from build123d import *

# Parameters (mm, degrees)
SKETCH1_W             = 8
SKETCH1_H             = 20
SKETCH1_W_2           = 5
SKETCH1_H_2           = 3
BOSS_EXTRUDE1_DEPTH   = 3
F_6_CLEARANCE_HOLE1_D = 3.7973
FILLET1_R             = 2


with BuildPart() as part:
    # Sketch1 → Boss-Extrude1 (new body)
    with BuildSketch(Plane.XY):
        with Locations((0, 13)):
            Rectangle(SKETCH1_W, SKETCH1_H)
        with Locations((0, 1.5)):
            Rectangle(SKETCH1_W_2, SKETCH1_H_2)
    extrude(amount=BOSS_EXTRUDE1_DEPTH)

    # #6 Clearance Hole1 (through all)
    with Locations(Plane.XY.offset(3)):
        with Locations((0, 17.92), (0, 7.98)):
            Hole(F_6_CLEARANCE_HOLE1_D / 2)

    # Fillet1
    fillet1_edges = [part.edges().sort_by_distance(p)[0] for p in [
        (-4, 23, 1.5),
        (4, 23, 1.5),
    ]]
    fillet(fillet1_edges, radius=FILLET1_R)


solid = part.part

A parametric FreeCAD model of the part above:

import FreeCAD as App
import Part
import Sketcher
from FreeCAD import Vector
Q = App.Units.Quantity


def edges_at(feature, points):
    """Names of the edges that pass closest to the given points."""
    edges = feature.Shape.Edges
    near = lambda p: min(range(len(edges)), key=lambda i: edges[i].distToShape(Part.Vertex(*p))[0])
    return sorted({f"Edge{near(p) + 1}" for p in points})


def add_polygon(sketch, points):
    """Adds a closed chain of lines whose ends are joined by coincident constraints."""
    first, n = sketch.GeometryCount, len(points)
    for a, b in zip(points, points[1:] + points[:1]):
        sketch.addGeometry(Part.LineSegment(App.Vector(*a, 0), App.Vector(*b, 0)), False)
    for i in range(n):
        sketch.addConstraint(Sketcher.Constraint("Coincident", first + i, 2, first + (i + 1) % n, 1))

doc = App.newDocument("Part")
params = doc.addObject("Spreadsheet::Sheet", "Params")
for row, (alias, value) in enumerate([
    ("sketch1_width", "5 mm"),
    ("sketch1_width2", "8 mm"),
    ("sketch1_height", "20 mm"),
    ("sketch1_height2", "3 mm"),
    ("pad1_length", "3 mm"),
    ("hole_diameter", "3.7973 mm"),
    ("fillet_radius", "2 mm"),
], start=1):
    params.set(f"A{row}", alias)
    params.set(f"B{row}", "=" + value)
    params.setAlias(f"B{row}", alias)

body = doc.addObject("PartDesign::Body", "Body")

# Sketch on XY plane
sketch1 = body.newObject("Sketcher::SketchObject", "Sketch")
sketch1.AttachmentSupport = (doc.getObject("XY_Plane"), [""])
sketch1.MapMode = "FlatFace"
add_polygon(sketch1, [(-4, 23), (-4, 3), (-2.5, 3), (-2.5, 0), (2.5, 0), (2.5, 3), (4, 3), (4, 23)])  # lines 0-7
sketch1.addConstraint(Sketcher.Constraint("Vertical", 0))
sketch1.addConstraint(Sketcher.Constraint("Horizontal", 1))
sketch1.addConstraint(Sketcher.Constraint("Vertical", 2))
sketch1.addConstraint(Sketcher.Constraint("Horizontal", 3))
sketch1.addConstraint(Sketcher.Constraint("Vertical", 4))
sketch1.addConstraint(Sketcher.Constraint("Horizontal", 5))
sketch1.addConstraint(Sketcher.Constraint("Vertical", 6))
sketch1.addConstraint(Sketcher.Constraint("Horizontal", 7))
sketch1.addConstraint(Sketcher.Constraint("Symmetric", 2, 2, 3, 2, -1, 1))
sketch1.addConstraint(Sketcher.Constraint("Symmetric", 0, 2, 5, 2, -2))
sketch1.addConstraint(Sketcher.Constraint("DistanceX", 3, 1, 3, 2, Q("5 mm")))
sketch1.addConstraint(Sketcher.Constraint("DistanceX", 7, 2, 7, 1, Q("8 mm")))
sketch1.addConstraint(Sketcher.Constraint("DistanceY", 0, 2, 0, 1, Q("20 mm")))
sketch1.addConstraint(Sketcher.Constraint("DistanceY", 2, 2, 2, 1, Q("3 mm")))
sketch1.setExpression("Constraints[18]", "Params.sketch1_width")
sketch1.setExpression("Constraints[19]", "Params.sketch1_width2")
sketch1.setExpression("Constraints[20]", "Params.sketch1_height")
sketch1.setExpression("Constraints[21]", "Params.sketch1_height2")
pad1 = body.newObject("PartDesign::Pad", "Pad")
pad1.Profile = sketch1
pad1.setExpression("Length", "Params.pad1_length")

# Sketch on XY plane
sketch2 = body.newObject("Sketcher::SketchObject", "Sketch001")
sketch2.AttachmentSupport = (doc.getObject("XY_Plane"), [""])
sketch2.MapMode = "FlatFace"
sketch2.AttachmentOffset = App.Placement(Vector(0, 0, 3), App.Rotation())
sketch2.addGeometry(Part.Circle(Vector(0, 17.92, 0), Vector(0, 0, 1), 1.89865), False)
sketch2.addGeometry(Part.Circle(Vector(0, 7.98, 0), Vector(0, 0, 1), 1.89865), False)
sketch2.addConstraint(Sketcher.Constraint("Equal", 0, 1))
sketch2.addConstraint(Sketcher.Constraint("PointOnObject", 0, 3, -2))
sketch2.addConstraint(Sketcher.Constraint("PointOnObject", 1, 3, -2))
sketch2.addConstraint(Sketcher.Constraint("Diameter", 0, Q("3.7973 mm")))
sketch2.addConstraint(Sketcher.Constraint("DistanceY", -1, 1, 0, 3, Q("17.92 mm")))
sketch2.addConstraint(Sketcher.Constraint("DistanceY", -1, 1, 1, 3, Q("7.98 mm")))
doc.recompute()
hole = body.newObject("PartDesign::Hole", "Hole")
hole.Profile = sketch2
hole.ThreadType = "None"
hole.setExpression("Diameter", "Params.hole_diameter")
hole.DepthType = "ThroughAll"
doc.recompute()

fillet = body.newObject("PartDesign::Fillet", "Fillet")
fillet.Base = (hole, edges_at(hole, [(-4, 23, 1.5), (4, 23, 1.5)]))
fillet.setExpression("Radius", "Params.fillet_radius")

doc.recompute()
